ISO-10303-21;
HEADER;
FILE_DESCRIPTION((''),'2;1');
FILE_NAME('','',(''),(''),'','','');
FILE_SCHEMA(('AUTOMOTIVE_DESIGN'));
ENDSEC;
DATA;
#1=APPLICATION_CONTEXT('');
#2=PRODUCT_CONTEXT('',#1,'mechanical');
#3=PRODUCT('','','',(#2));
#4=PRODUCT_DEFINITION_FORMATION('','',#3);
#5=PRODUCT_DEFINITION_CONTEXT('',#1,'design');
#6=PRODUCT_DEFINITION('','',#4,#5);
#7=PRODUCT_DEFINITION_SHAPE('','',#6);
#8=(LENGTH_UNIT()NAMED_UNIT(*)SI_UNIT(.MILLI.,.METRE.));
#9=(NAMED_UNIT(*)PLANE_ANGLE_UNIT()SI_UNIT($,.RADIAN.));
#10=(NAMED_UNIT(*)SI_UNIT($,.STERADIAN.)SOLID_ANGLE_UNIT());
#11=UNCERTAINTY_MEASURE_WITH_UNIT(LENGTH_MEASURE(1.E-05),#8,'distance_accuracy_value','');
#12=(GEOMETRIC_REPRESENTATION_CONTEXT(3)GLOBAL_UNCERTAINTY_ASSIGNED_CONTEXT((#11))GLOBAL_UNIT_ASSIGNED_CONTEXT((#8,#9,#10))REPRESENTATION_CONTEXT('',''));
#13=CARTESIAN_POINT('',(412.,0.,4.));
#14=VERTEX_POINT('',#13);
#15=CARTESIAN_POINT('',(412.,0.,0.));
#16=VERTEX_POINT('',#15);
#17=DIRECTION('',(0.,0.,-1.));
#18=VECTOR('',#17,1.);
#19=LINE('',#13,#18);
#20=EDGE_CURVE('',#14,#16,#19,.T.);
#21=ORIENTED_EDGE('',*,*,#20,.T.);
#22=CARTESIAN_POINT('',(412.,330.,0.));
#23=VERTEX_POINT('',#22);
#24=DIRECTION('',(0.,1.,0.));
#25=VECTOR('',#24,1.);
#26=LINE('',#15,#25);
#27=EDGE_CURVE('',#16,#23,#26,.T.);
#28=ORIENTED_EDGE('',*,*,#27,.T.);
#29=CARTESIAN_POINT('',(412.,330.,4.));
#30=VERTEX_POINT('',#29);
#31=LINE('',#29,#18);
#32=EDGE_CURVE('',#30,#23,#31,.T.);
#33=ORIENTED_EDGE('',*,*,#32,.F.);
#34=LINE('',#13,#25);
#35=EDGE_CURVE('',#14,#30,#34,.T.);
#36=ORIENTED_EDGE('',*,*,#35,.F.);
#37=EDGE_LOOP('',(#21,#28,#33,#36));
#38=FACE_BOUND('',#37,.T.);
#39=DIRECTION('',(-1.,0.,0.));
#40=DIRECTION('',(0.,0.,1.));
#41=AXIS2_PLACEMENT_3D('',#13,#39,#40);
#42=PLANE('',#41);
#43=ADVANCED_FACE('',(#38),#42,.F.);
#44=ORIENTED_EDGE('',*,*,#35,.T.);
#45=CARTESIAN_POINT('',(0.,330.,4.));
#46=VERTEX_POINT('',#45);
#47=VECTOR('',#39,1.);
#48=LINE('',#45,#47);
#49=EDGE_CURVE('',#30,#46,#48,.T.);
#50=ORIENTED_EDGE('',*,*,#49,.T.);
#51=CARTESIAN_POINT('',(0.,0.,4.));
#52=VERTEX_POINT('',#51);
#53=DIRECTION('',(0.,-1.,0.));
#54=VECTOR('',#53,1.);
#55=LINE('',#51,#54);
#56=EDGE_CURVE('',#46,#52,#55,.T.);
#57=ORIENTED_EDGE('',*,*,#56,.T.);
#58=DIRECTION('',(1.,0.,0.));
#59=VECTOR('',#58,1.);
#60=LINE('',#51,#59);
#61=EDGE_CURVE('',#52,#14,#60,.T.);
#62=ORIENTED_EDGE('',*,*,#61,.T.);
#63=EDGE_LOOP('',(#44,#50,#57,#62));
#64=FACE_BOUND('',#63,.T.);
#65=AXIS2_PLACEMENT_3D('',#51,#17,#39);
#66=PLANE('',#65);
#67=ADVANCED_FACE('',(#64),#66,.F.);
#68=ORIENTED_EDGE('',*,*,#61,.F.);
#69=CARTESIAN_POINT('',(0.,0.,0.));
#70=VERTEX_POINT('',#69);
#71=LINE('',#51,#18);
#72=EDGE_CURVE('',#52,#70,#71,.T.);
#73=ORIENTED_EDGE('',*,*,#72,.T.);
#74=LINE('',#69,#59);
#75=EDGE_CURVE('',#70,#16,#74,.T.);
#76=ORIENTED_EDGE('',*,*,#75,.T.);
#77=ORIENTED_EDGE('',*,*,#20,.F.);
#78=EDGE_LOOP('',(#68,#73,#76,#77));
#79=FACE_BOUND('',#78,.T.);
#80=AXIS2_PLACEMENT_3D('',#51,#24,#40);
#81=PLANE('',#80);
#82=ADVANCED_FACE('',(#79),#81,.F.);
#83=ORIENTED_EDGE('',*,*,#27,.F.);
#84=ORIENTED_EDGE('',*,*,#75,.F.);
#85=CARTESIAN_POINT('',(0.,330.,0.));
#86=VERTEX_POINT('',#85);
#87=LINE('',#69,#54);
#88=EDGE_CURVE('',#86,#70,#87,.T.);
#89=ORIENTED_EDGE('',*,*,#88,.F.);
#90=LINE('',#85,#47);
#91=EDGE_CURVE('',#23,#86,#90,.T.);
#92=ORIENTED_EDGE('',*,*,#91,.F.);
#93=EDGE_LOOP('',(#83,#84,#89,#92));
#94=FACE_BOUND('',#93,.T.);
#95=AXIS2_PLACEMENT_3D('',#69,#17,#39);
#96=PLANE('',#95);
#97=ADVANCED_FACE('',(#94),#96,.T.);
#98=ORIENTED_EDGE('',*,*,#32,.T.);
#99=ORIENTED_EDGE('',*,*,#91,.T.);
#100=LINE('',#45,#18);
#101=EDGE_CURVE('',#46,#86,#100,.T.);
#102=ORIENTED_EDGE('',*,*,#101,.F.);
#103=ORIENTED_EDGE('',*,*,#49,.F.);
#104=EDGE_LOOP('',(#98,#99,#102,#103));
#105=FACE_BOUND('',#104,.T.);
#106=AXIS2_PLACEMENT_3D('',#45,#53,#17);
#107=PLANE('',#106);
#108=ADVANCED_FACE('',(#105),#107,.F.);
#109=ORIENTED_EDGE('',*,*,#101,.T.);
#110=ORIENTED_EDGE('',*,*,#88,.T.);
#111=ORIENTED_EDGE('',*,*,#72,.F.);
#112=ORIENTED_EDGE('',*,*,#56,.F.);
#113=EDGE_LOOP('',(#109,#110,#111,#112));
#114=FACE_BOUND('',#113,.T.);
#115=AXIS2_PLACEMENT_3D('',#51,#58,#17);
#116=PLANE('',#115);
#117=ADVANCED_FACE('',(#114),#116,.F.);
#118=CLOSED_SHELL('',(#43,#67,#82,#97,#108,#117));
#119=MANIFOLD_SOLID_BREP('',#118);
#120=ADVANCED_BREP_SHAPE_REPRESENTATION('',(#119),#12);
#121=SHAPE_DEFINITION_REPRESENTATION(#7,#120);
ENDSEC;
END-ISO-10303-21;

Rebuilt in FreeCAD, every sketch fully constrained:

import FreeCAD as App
import Part
import Sketcher
from FreeCAD import Vector
Q = App.Units.Quantity


def add_polygon(sketch, points):
    """Adds a closed chain of lines whose ends are joined by coincident constraints."""
    first, n = sketch.GeometryCount, len(points)
    for a, b in zip(points, points[1:] + points[:1]):
        sketch.addGeometry(Part.LineSegment(App.Vector(*a, 0), App.Vector(*b, 0)), False)
    for i in range(n):
        sketch.addConstraint(Sketcher.Constraint("Coincident", first + i, 2, first + (i + 1) % n, 1))

doc = App.newDocument("Part")
body = doc.addObject("PartDesign::Body", "Body")

# Sketch on XY plane
sketch1 = body.newObject("Sketcher::SketchObject", "Sketch")
sketch1.AttachmentSupport = (doc.getObject("XY_Plane"), [""])
sketch1.MapMode = "FlatFace"
add_polygon(sketch1, [(0, 330), (0, 0), (412, 0), (412, 330)])  # lines 0-3
sketch1.addConstraint(Sketcher.Constraint("Vertical", 0))
sketch1.addConstraint(Sketcher.Constraint("Horizontal", 1))
sketch1.addConstraint(Sketcher.Constraint("Vertical", 2))
sketch1.addConstraint(Sketcher.Constraint("Horizontal", 3))
sketch1.addConstraint(Sketcher.Constraint("Coincident", 0, 2, -1, 1))
sketch1.addConstraint(Sketcher.Constraint("DistanceX", 1, 1, 1, 2, Q("412 mm")))
sketch1.addConstraint(Sketcher.Constraint("DistanceY", 0, 2, 0, 1, Q("330 mm")))
pad1 = body.newObject("PartDesign::Pad", "Pad")
pad1.Profile = sketch1
pad1.Length = 4

doc.recompute()
